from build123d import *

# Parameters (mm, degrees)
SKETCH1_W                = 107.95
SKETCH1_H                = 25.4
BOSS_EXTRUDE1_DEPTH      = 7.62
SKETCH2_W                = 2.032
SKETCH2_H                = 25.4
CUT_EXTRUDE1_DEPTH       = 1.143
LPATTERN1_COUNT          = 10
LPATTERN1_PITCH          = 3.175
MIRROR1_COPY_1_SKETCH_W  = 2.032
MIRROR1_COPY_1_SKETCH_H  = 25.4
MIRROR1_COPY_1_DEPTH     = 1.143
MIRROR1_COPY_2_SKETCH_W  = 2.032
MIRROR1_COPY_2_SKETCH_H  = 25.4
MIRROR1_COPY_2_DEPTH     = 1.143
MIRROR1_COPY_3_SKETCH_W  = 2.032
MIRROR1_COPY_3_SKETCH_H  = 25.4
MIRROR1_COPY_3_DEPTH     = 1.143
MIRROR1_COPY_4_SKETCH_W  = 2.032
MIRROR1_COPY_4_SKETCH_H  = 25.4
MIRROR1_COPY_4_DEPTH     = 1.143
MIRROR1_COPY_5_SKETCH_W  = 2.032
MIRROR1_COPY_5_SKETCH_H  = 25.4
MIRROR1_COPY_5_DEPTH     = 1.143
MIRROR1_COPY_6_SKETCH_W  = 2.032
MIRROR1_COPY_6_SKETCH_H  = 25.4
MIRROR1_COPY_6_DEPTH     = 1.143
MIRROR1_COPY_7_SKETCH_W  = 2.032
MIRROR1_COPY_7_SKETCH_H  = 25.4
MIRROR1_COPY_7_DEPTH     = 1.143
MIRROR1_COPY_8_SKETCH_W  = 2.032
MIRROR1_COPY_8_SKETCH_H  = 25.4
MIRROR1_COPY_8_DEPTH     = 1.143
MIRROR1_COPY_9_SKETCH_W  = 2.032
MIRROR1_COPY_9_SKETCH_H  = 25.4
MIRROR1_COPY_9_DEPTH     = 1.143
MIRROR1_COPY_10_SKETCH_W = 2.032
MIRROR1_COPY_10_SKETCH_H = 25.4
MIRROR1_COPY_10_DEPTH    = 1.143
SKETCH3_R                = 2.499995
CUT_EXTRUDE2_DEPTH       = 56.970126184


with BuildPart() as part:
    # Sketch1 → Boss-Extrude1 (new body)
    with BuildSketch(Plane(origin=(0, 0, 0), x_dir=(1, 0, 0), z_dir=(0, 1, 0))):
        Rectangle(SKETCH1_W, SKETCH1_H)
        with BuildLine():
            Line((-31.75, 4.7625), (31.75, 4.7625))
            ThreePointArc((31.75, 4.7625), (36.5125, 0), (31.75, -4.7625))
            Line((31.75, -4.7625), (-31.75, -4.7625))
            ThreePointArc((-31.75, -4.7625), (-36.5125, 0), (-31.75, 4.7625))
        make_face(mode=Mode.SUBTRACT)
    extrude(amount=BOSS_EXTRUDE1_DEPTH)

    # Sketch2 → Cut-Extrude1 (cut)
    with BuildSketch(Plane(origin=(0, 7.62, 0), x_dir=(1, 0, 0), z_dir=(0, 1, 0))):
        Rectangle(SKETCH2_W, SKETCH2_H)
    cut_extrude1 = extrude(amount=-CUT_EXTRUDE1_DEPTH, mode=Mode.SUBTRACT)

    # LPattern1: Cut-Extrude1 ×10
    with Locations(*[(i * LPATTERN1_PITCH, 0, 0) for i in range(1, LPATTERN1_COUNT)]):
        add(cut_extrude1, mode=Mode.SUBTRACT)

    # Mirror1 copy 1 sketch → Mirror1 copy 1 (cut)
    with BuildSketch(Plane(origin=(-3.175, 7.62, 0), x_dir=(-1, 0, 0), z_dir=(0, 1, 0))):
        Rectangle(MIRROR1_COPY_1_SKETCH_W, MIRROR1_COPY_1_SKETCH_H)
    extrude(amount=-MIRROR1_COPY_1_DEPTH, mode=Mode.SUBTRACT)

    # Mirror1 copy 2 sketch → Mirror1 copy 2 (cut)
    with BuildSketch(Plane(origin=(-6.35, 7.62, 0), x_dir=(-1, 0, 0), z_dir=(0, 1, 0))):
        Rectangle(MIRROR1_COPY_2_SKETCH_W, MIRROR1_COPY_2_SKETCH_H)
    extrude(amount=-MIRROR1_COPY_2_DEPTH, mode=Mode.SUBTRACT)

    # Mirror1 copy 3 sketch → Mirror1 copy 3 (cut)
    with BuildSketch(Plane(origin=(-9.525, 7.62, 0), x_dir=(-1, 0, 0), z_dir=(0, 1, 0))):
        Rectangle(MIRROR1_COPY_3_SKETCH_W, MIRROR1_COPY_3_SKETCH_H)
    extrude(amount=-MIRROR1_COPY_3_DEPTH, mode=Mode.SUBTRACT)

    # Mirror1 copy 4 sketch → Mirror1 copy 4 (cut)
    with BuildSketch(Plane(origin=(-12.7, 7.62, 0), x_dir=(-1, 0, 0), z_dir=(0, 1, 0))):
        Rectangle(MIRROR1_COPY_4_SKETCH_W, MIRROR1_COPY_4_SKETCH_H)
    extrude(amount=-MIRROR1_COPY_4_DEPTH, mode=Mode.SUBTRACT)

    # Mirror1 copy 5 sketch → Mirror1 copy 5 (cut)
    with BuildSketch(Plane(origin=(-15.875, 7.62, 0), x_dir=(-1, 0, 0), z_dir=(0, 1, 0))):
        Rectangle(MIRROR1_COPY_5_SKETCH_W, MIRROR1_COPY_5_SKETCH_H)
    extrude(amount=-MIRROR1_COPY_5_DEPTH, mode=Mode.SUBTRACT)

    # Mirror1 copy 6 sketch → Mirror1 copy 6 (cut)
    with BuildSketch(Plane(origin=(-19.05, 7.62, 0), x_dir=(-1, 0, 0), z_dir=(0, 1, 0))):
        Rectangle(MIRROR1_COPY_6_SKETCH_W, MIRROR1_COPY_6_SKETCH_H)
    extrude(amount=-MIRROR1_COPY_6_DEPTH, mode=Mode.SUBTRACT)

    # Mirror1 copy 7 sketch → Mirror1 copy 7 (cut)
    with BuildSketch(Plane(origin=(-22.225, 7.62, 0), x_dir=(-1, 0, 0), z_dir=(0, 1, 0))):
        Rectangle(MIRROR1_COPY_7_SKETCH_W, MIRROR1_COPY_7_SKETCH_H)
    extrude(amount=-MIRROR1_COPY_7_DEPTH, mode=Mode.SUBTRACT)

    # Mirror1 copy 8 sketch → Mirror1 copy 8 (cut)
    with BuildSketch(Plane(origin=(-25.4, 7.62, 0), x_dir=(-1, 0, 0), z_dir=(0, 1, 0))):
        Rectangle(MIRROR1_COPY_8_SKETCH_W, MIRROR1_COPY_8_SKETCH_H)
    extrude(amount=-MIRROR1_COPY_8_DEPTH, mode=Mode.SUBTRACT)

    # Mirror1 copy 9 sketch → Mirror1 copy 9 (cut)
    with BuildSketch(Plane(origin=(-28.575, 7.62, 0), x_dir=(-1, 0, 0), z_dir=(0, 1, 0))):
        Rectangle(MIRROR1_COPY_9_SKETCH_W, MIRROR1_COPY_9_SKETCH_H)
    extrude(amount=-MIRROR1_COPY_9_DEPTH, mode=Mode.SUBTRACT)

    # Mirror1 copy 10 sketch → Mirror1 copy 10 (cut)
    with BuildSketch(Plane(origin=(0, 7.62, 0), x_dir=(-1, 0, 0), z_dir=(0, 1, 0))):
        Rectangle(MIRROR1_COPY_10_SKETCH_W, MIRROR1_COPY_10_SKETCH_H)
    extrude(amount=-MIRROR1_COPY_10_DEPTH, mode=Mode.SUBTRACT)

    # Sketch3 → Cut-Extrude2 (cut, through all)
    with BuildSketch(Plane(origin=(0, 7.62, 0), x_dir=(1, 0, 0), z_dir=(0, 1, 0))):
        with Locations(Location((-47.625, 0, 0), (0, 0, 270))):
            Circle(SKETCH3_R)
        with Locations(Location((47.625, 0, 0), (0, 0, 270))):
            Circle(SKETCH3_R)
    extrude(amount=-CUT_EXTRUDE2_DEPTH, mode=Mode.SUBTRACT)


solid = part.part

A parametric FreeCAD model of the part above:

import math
import FreeCAD as App
import Part
import Sketcher
from FreeCAD import Vector
Q = App.Units.Quantity


def add_polygon(sketch, points):
    """Adds a closed chain of lines whose ends are joined by coincident constraints."""
    first, n = sketch.GeometryCount, len(points)
    for a, b in zip(points, points[1:] + points[:1]):
        sketch.addGeometry(Part.LineSegment(App.Vector(*a, 0), App.Vector(*b, 0)), False)
    for i in range(n):
        sketch.addConstraint(Sketcher.Constraint("Coincident", first + i, 2, first + (i + 1) % n, 1))

doc = App.newDocument("Part")
params = doc.addObject("Spreadsheet::Sheet", "Params")
for row, (alias, value) in enumerate([
    ("sketch1_height", "1 in"),
    ("sketch1_width", "2.5 in"),
    ("sketch1_radius", "0.1875 in"),
    ("sketch1_width2", "4.25 in"),
    ("pad1_length", "0.3 in"),
    ("sketch2_height", "1 in"),
    ("sketch2_width", "0.08 in"),
    ("pocket1_length", "0.045 in"),
    ("linearpattern_pitch", "0.125 in"),
    ("sketch3_height", "1 in"),
    ("sketch3_width", "0.08 in"),
    ("pocket2_length", "0.045 in"),
    ("sketch4_height", "1 in"),
    ("sketch4_width", "0.08 in"),
    ("pocket3_length", "0.045 in"),
    ("sketch5_height", "1 in"),
    ("sketch5_width", "0.08 in"),
    ("pocket4_length", "0.045 in"),
    ("sketch6_height", "1 in"),
    ("sketch6_width", "0.08 in"),
    ("pocket5_length", "0.045 in"),
    ("sketch7_height", "1 in"),
    ("sketch7_width", "0.08 in"),
    ("pocket6_length", "0.045 in"),
    ("sketch8_height", "1 in"),
    ("sketch8_width", "0.08 in"),
    ("pocket7_length", "0.045 in"),
    ("sketch9_height", "1 in"),
    ("sketch9_width", "0.08 in"),
    ("pocket8_length", "0.045 in"),
    ("sketch10_height", "1 in"),
    ("sketch10_width", "0.08 in"),
    ("pocket9_length", "0.045 in"),
    ("sketch11_height", "1 in"),
    ("sketch11_width", "0.08 in"),
    ("pocket10_length", "0.045 in"),
    ("sketch12_height", "1 in"),
    ("sketch12_width", "0.08 in"),
    ("pocket11_length", "0.045 in"),
], start=1):
    params.set(f"A{row}", alias)
    params.set(f"B{row}", "=" + value)
    params.setAlias(f"B{row}", alias)

body = doc.addObject("PartDesign::Body", "Body")

sketch1 = doc.addObject("Sketcher::SketchObject", "Sketch")
body.addObject(sketch1)
sketch1.AttachmentSupport = (doc.XZ_Plane, [""])
sketch1.MapMode = "FlatFace"
add_polygon(sketch1, [(-54, -12.7), (-54, 12.7), (54, 12.7), (54, -12.7)])
sketch1.addGeometry(Part.ArcOfCircle(Part.Circle(Vector(-31.8, 0, 0), Vector(0, 0, 1), 4.8), math.radians(90), math.radians(270)), False)
sketch1.addGeometry(Part.LineSegment(Vector(-31.8, -4.8, 0), Vector(31.8, -4.8, 0)), False)
sketch1.addGeometry(Part.ArcOfCircle(Part.Circle(Vector(31.8, 0, 0), Vector(0, 0, 1), 4.8), math.radians(-90), math.radians(90)), False)
sketch1.addGeometry(Part.LineSegment(Vector(31.8, 4.8, 0), Vector(-31.8, 4.8, 0)), False)
sketch1.addConstraint([
    Sketcher.Constraint("Tangent", 4, 2, 5, 1),
    Sketcher.Constraint("Tangent", 5, 2, 6, 1),
    Sketcher.Constraint("Tangent", 6, 2, 7, 1),
    Sketcher.Constraint("Tangent", 7, 2, 4, 1),
    Sketcher.Constraint("Vertical", 0),
    Sketcher.Constraint("Horizontal", 1),
    Sketcher.Constraint("Vertical", 2),
    Sketcher.Constraint("Horizontal", 3),
    Sketcher.Constraint("Horizontal", 5),
    Sketcher.Constraint("Horizontal", 7),
    Sketcher.Constraint("Symmetric", 4, 3, 6, 3, -1, 1),
    Sketcher.Constraint("Symmetric", 0, 2, 2, 2, -1, 1),
    Sketcher.Constraint("DistanceY", 0, 1, 0, 2, Q("1 in")),
    Sketcher.Constraint("DistanceX", 5, 1, 5, 2, Q("2.5 in")),
    Sketcher.Constraint("Radius", 4, Q("0.1875 in")),
    Sketcher.Constraint("DistanceX", 1, 1, 1, 2, Q("4.25 in")),
])
sketch1.setExpression("Constraints[16]", "Params.sketch1_height")
sketch1.setExpression("Constraints[17]", "Params.sketch1_width")
sketch1.setExpression("Constraints[18]", "Params.sketch1_radius")
sketch1.setExpression("Constraints[19]", "Params.sketch1_width2")
pad1 = doc.addObject("PartDesign::Pad", "Pad")
body.addObject(pad1)
pad1.Profile = sketch1
pad1.setExpression("Length", "Params.pad1_length")
pad1.Reversed = True

sketch2 = doc.addObject("Sketcher::SketchObject", "Sketch001")
body.addObject(sketch2)
sketch2.AttachmentSupport = (doc.XZ_Plane, [""])
sketch2.MapMode = "FlatFace"
sketch2.AttachmentOffset = App.Placement(Vector(0, 0, -0.3 * 25.4), App.Rotation())
add_polygon(sketch2, [(-1, -12.7), (-1, 12.7), (1, 12.7), (1, -12.7)])
sketch2.addConstraint([
    Sketcher.Constraint("Vertical", 0),
    Sketcher.Constraint("Horizontal", 1),
    Sketcher.Constraint("Vertical", 2),
    Sketcher.Constraint("Horizontal", 3),
    Sketcher.Constraint("Symmetric", 0, 2, 2, 2, -1, 1),
    Sketcher.Constraint("DistanceY", 0, 1, 0, 2, Q("1 in")),
    Sketcher.Constraint("DistanceX", 1, 1, 1, 2, Q("0.08 in")),
])
sketch2.setExpression("Constraints[9]", "Params.sketch2_height")
sketch2.setExpression("Constraints[10]", "Params.sketch2_width")
pocket1 = doc.addObject("PartDesign::Pocket", "Pocket")
body.addObject(pocket1)
pocket1.Profile = sketch2
pocket1.setExpression("Length", "Params.pocket1_length")
pocket1.Reversed = True
doc.recompute()

linearpattern = doc.addObject("PartDesign::LinearPattern", "LinearPattern")
body.addObject(linearpattern)
linearpattern.Originals = [pocket1]
linearpattern.Direction = (doc.X_Axis, [""])
linearpattern.Mode = "offset"
linearpattern.setExpression("Offset", "Params.linearpattern_pitch")
linearpattern.Occurrences = 10
body.Tip = linearpattern

sketch3 = doc.addObject("Sketcher::SketchObject", "Sketch002")
body.addObject(sketch3)
sketch3.AttachmentSupport = (doc.XZ_Plane, [""])
sketch3.MapMode = "FlatFace"
sketch3.AttachmentOffset = App.Placement(Vector(0, 0, -0.3 * 25.4), App.Rotation())
add_polygon(sketch3, [(-2.2, 12.7), (-2.2, -12.7), (-4.2, -12.7), (-4.2, 12.7)])
sketch3.addConstraint([
    Sketcher.Constraint("Vertical", 0),
    Sketcher.Constraint("Horizontal", 1),
    Sketcher.Constraint("Vertical", 2),
    Sketcher.Constraint("Horizontal", 3),
    Sketcher.Constraint("DistanceY", 0, 2, 0, 1, Q("1 in")),
    Sketcher.Constraint("DistanceX", 1, 2, 1, 1, Q("0.08 in")),
    Sketcher.Constraint("DistanceY", 0, 2, -1, 1, Q("0.5 in")),
    Sketcher.Constraint("DistanceX", 0, 2, -1, 1, Q("0.085 in")),
])
sketch3.setExpression("Constraints[8]", "Params.sketch3_height")
sketch3.setExpression("Constraints[9]", "Params.sketch3_width")
pocket2 = doc.addObject("PartDesign::Pocket", "Pocket001")
body.addObject(pocket2)
pocket2.Profile = sketch3
pocket2.setExpression("Length", "Params.pocket2_length")
pocket2.Reversed = True

sketch4 = doc.addObject("Sketcher::SketchObject", "Sketch003")
body.addObject(sketch4)
sketch4.AttachmentSupport = (doc.XZ_Plane, [""])
sketch4.MapMode = "FlatFace"
sketch4.AttachmentOffset = App.Placement(Vector(0, 0, -0.3 * 25.4), App.Rotation())
add_polygon(sketch4, [(-5.3, 12.7), (-5.3, -12.7), (-7.4, -12.7), (-7.4, 12.7)])
sketch4.addConstraint([
    Sketcher.Constraint("Vertical", 0),
    Sketcher.Constraint("Horizontal", 1),
    Sketcher.Constraint("Vertical", 2),
    Sketcher.Constraint("Horizontal", 3),
    Sketcher.Constraint("DistanceY", 0, 2, 0, 1, Q("1 in")),
    Sketcher.Constraint("DistanceX", 1, 2, 1, 1, Q("0.08 in")),
    Sketcher.Constraint("DistanceY", 0, 2, -1, 1, Q("0.5 in")),
    Sketcher.Constraint("DistanceX", 0, 2, -1, 1, Q("0.21 in")),
])
sketch4.setExpression("Constraints[8]", "Params.sketch4_height")
sketch4.setExpression("Constraints[9]", "Params.sketch4_width")
pocket3 = doc.addObject("PartDesign::Pocket", "Pocket002")
body.addObject(pocket3)
pocket3.Profile = sketch4
pocket3.setExpression("Length", "Params.pocket3_length")
pocket3.Reversed = True

sketch5 = doc.addObject("Sketcher::SketchObject", "Sketch004")
body.addObject(sketch5)
sketch5.AttachmentSupport = (doc.XZ_Plane, [""])
sketch5.MapMode = "FlatFace"
sketch5.AttachmentOffset = App.Placement(Vector(0, 0, -0.3 * 25.4), App.Rotation())
add_polygon(sketch5, [(-8.5, 12.7), (-8.5, -12.7), (-10.5, -12.7), (-10.5, 12.7)])
sketch5.addConstraint([
    Sketcher.Constraint("Vertical", 0),
    Sketcher.Constraint("Horizontal", 1),
    Sketcher.Constraint("Vertical", 2),
    Sketcher.Constraint("Horizontal", 3),
    Sketcher.Constraint("DistanceY", 0, 2, 0, 1, Q("1 in")),
    Sketcher.Constraint("DistanceX", 1, 2, 1, 1, Q("0.08 in")),
    Sketcher.Constraint("DistanceY", 0, 2, -1, 1, Q("0.5 in")),
    Sketcher.Constraint("DistanceX", 0, 2, -1, 1, Q("0.335 in")),
])
sketch5.setExpression("Constraints[8]", "Params.sketch5_height")
sketch5.setExpression("Constraints[9]", "Params.sketch5_width")
pocket4 = doc.addObject("PartDesign::Pocket", "Pocket003")
body.addObject(pocket4)
pocket4.Profile = sketch5
pocket4.setExpression("Length", "Params.pocket4_length")
pocket4.Reversed = True

sketch6 = doc.addObject("Sketcher::SketchObject", "Sketch005")
body.addObject(sketch6)
sketch6.AttachmentSupport = (doc.XZ_Plane, [""])
sketch6.MapMode = "FlatFace"
sketch6.AttachmentOffset = App.Placement(Vector(0, 0, -0.3 * 25.4), App.Rotation())
add_polygon(sketch6, [(-11.7, 12.7), (-11.7, -12.7), (-13.7, -12.7), (-13.7, 12.7)])
sketch6.addConstraint([
    Sketcher.Constraint("Vertical", 0),
    Sketcher.Constraint("Horizontal", 1),
    Sketcher.Constraint("Vertical", 2),
    Sketcher.Constraint("Horizontal", 3),
    Sketcher.Constraint("DistanceY", 0, 2, 0, 1, Q("1 in")),
    Sketcher.Constraint("DistanceX", 1, 2, 1, 1, Q("0.08 in")),
    Sketcher.Constraint("DistanceY", 0, 2, -1, 1, Q("0.5 in")),
    Sketcher.Constraint("DistanceX", 0, 2, -1, 1, Q("0.46 in")),
])
sketch6.setExpression("Constraints[8]", "Params.sketch6_height")
sketch6.setExpression("Constraints[9]", "Params.sketch6_width")
pocket5 = doc.addObject("PartDesign::Pocket", "Pocket004")
body.addObject(pocket5)
pocket5.Profile = sketch6
pocket5.setExpression("Length", "Params.pocket5_length")
pocket5.Reversed = True

sketch7 = doc.addObject("Sketcher::SketchObject", "Sketch006")
body.addObject(sketch7)
sketch7.AttachmentSupport = (doc.XZ_Plane, [""])
sketch7.MapMode = "FlatFace"
sketch7.AttachmentOffset = App.Placement(Vector(0, 0, -0.3 * 25.4), App.Rotation())
add_polygon(sketch7, [(-14.9, 12.7), (-14.9, -12.7), (-16.9, -12.7), (-16.9, 12.7)])
sketch7.addConstraint([
    Sketcher.Constraint("Vertical", 0),
    Sketcher.Constraint("Horizontal", 1),
    Sketcher.Constraint("Vertical", 2),
    Sketcher.Constraint("Horizontal", 3),
    Sketcher.Constraint("DistanceY", 0, 2, 0, 1, Q("1 in")),
    Sketcher.Constraint("DistanceX", 1, 2, 1, 1, Q("0.08 in")),
    Sketcher.Constraint("DistanceY", 0, 2, -1, 1, Q("0.5 in")),
    Sketcher.Constraint("DistanceX", 0, 2, -1, 1, Q("0.585 in")),
])
sketch7.setExpression("Constraints[8]", "Params.sketch7_height")
sketch7.setExpression("Constraints[9]", "Params.sketch7_width")
pocket6 = doc.addObject("PartDesign::Pocket", "Pocket005")
body.addObject(pocket6)
pocket6.Profile = sketch7
pocket6.setExpression("Length", "Params.pocket6_length")
pocket6.Reversed = True

sketch8 = doc.addObject("Sketcher::SketchObject", "Sketch007")
body.addObject(sketch8)
sketch8.AttachmentSupport = (doc.XZ_Plane, [""])
sketch8.MapMode = "FlatFace"
sketch8.AttachmentOffset = App.Placement(Vector(0, 0, -0.3 * 25.4), App.Rotation())
add_polygon(sketch8, [(-18, 12.7), (-18, -12.7), (-20.1, -12.7), (-20.1, 12.7)])
sketch8.addConstraint([
    Sketcher.Constraint("Vertical", 0),
    Sketcher.Constraint("Horizontal", 1),
    Sketcher.Constraint("Vertical", 2),
    Sketcher.Constraint("Horizontal", 3),
    Sketcher.Constraint("DistanceY", 0, 2, 0, 1, Q("1 in")),
    Sketcher.Constraint("DistanceX", 1, 2, 1, 1, Q("0.08 in")),
    Sketcher.Constraint("DistanceY", 0, 2, -1, 1, Q("0.5 in")),
    Sketcher.Constraint("DistanceX", 0, 2, -1, 1, Q("0.71 in")),
])
sketch8.setExpression("Constraints[8]", "Params.sketch8_height")
sketch8.setExpression("Constraints[9]", "Params.sketch8_width")
pocket7 = doc.addObject("PartDesign::Pocket", "Pocket006")
body.addObject(pocket7)
pocket7.Profile = sketch8
pocket7.setExpression("Length", "Params.pocket7_length")
pocket7.Reversed = True

sketch9 = doc.addObject("Sketcher::SketchObject", "Sketch008")
body.addObject(sketch9)
sketch9.AttachmentSupport = (doc.XZ_Plane, [""])
sketch9.MapMode = "FlatFace"
sketch9.AttachmentOffset = App.Placement(Vector(0, 0, -0.3 * 25.4), App.Rotation())
add_polygon(sketch9, [(-21.2, 12.7), (-21.2, -12.7), (-23.2, -12.7), (-23.2, 12.7)])
sketch9.addConstraint([
    Sketcher.Constraint("Vertical", 0),
    Sketcher.Constraint("Horizontal", 1),
    Sketcher.Constraint("Vertical", 2),
    Sketcher.Constraint("Horizontal", 3),
    Sketcher.Constraint("DistanceY", 0, 2, 0, 1, Q("1 in")),
    Sketcher.Constraint("DistanceX", 1, 2, 1, 1, Q("0.08 in")),
    Sketcher.Constraint("DistanceY", 0, 2, -1, 1, Q("0.5 in")),
    Sketcher.Constraint("DistanceX", 0, 2, -1, 1, Q("0.835 in")),
])
sketch9.setExpression("Constraints[8]", "Params.sketch9_height")
sketch9.setExpression("Constraints[9]", "Params.sketch9_width")
pocket8 = doc.addObject("PartDesign::Pocket", "Pocket007")
body.addObject(pocket8)
pocket8.Profile = sketch9
pocket8.setExpression("Length", "Params.pocket8_length")
pocket8.Reversed = True

sketch10 = doc.addObject("Sketcher::SketchObject", "Sketch009")
body.addObject(sketch10)
sketch10.AttachmentSupport = (doc.XZ_Plane, [""])
sketch10.MapMode = "FlatFace"
sketch10.AttachmentOffset = App.Placement(Vector(0, 0, -0.3 * 25.4), App.Rotation())
add_polygon(sketch10, [(-24.4, 12.7), (-24.4, -12.7), (-26.4, -12.7), (-26.4, 12.7)])
sketch10.addConstraint([
    Sketcher.Constraint("Vertical", 0),
    Sketcher.Constraint("Horizontal", 1),
    Sketcher.Constraint("Vertical", 2),
    Sketcher.Constraint("Horizontal", 3),
    Sketcher.Constraint("DistanceY", 0, 2, 0, 1, Q("1 in")),
    Sketcher.Constraint("DistanceX", 1, 2, 1, 1, Q("0.08 in")),
    Sketcher.Constraint("DistanceY", 0, 2, -1, 1, Q("0.5 in")),
    Sketcher.Constraint("DistanceX", 0, 2, -1, 1, Q("0.96 in")),
])
sketch10.setExpression("Constraints[8]", "Params.sketch10_height")
sketch10.setExpression("Constraints[9]", "Params.sketch10_width")
pocket9 = doc.addObject("PartDesign::Pocket", "Pocket008")
body.addObject(pocket9)
pocket9.Profile = sketch10
pocket9.setExpression("Length", "Params.pocket9_length")
pocket9.Reversed = True

sketch11 = doc.addObject("Sketcher::SketchObject", "Sketch010")
body.addObject(sketch11)
sketch11.AttachmentSupport = (doc.XZ_Plane, [""])
sketch11.MapMode = "FlatFace"
sketch11.AttachmentOffset = App.Placement(Vector(0, 0, -0.3 * 25.4), App.Rotation())
add_polygon(sketch11, [(-27.6, 12.7), (-27.6, -12.7), (-29.6, -12.7), (-29.6, 12.7)])
sketch11.addConstraint([
    Sketcher.Constraint("Vertical", 0),
    Sketcher.Constraint("Horizontal", 1),
    Sketcher.Constraint("Vertical", 2),
    Sketcher.Constraint("Horizontal", 3),
    Sketcher.Constraint("DistanceY", 0, 2, 0, 1, Q("1 in")),
    Sketcher.Constraint("DistanceX", 1, 2, 1, 1, Q("0.08 in")),
    Sketcher.Constraint("DistanceY", 0, 2, -1, 1, Q("0.5 in")),
    Sketcher.Constraint("DistanceX", 0, 2, -1, 1, Q("1.085 in")),
])
sketch11.setExpression("Constraints[8]", "Params.sketch11_height")
sketch11.setExpression("Constraints[9]", "Params.sketch11_width")
pocket10 = doc.addObject("PartDesign::Pocket", "Pocket009")
body.addObject(pocket10)
pocket10.Profile = sketch11
pocket10.setExpression("Length", "Params.pocket10_length")
pocket10.Reversed = True

sketch12 = doc.addObject("Sketcher::SketchObject", "Sketch011")
body.addObject(sketch12)
sketch12.AttachmentSupport = (doc.XZ_Plane, [""])
sketch12.MapMode = "FlatFace"
sketch12.AttachmentOffset = App.Placement(Vector(0, 0, -0.3 * 25.4), App.Rotation())
add_polygon(sketch12, [(1, 12.7), (1, -12.7), (-1, -12.7), (-1, 12.7)])
sketch12.addConstraint([
    Sketcher.Constraint("Vertical", 0),
    Sketcher.Constraint("Horizontal", 1),
    Sketcher.Constraint("Vertical", 2),
    Sketcher.Constraint("Horizontal", 3),
    Sketcher.Constraint("Symmetric", 0, 2, 2, 2, -1, 1),
    Sketcher.Constraint("DistanceY", 0, 2, 0, 1, Q("1 in")),
    Sketcher.Constraint("DistanceX", 1, 2, 1, 1, Q("0.08 in")),
])
sketch12.setExpression("Constraints[9]", "Params.sketch12_height")
sketch12.setExpression("Constraints[10]", "Params.sketch12_width")
pocket11 = doc.addObject("PartDesign::Pocket", "Pocket010")
body.addObject(pocket11)
pocket11.Profile = sketch12
pocket11.setExpression("Length", "Params.pocket11_length")
pocket11.Reversed = True

sketch13 = doc.addObject("Sketcher::SketchObject", "Sketch012")
body.addObject(sketch13)
sketch13.AttachmentSupport = (doc.XZ_Plane, [""])
sketch13.MapMode = "FlatFace"
sketch13.AttachmentOffset = App.Placement(Vector(0, 0, -0.3 * 25.4), App.Rotation())
sketch13.addGeometry([
    Part.Circle(Vector(-47.6, 0, 0), Vector(0, 0, 1), 2.5),
    Part.Circle(Vector(47.6, 0, 0), Vector(0, 0, 1), 2.5),
], False)
sketch13.addConstraint([
    Sketcher.Constraint("Equal", 0, 1),
    Sketcher.Constraint("Symmetric", 0, 3, 1, 3, -1, 1),
    Sketcher.Constraint("PointOnObject", 0, 3, -1),
    Sketcher.Constraint("DistanceX", 0, 3, 1, 3, Q("3.75 in")),
    Sketcher.Constraint("Diameter", 0, 4.99999),
])
pocket12 = doc.addObject("PartDesign::Pocket", "Pocket011")
body.addObject(pocket12)
pocket12.Profile = sketch13
pocket12.Type = "ThroughAll"
pocket12.Reversed = True

doc.recompute()
